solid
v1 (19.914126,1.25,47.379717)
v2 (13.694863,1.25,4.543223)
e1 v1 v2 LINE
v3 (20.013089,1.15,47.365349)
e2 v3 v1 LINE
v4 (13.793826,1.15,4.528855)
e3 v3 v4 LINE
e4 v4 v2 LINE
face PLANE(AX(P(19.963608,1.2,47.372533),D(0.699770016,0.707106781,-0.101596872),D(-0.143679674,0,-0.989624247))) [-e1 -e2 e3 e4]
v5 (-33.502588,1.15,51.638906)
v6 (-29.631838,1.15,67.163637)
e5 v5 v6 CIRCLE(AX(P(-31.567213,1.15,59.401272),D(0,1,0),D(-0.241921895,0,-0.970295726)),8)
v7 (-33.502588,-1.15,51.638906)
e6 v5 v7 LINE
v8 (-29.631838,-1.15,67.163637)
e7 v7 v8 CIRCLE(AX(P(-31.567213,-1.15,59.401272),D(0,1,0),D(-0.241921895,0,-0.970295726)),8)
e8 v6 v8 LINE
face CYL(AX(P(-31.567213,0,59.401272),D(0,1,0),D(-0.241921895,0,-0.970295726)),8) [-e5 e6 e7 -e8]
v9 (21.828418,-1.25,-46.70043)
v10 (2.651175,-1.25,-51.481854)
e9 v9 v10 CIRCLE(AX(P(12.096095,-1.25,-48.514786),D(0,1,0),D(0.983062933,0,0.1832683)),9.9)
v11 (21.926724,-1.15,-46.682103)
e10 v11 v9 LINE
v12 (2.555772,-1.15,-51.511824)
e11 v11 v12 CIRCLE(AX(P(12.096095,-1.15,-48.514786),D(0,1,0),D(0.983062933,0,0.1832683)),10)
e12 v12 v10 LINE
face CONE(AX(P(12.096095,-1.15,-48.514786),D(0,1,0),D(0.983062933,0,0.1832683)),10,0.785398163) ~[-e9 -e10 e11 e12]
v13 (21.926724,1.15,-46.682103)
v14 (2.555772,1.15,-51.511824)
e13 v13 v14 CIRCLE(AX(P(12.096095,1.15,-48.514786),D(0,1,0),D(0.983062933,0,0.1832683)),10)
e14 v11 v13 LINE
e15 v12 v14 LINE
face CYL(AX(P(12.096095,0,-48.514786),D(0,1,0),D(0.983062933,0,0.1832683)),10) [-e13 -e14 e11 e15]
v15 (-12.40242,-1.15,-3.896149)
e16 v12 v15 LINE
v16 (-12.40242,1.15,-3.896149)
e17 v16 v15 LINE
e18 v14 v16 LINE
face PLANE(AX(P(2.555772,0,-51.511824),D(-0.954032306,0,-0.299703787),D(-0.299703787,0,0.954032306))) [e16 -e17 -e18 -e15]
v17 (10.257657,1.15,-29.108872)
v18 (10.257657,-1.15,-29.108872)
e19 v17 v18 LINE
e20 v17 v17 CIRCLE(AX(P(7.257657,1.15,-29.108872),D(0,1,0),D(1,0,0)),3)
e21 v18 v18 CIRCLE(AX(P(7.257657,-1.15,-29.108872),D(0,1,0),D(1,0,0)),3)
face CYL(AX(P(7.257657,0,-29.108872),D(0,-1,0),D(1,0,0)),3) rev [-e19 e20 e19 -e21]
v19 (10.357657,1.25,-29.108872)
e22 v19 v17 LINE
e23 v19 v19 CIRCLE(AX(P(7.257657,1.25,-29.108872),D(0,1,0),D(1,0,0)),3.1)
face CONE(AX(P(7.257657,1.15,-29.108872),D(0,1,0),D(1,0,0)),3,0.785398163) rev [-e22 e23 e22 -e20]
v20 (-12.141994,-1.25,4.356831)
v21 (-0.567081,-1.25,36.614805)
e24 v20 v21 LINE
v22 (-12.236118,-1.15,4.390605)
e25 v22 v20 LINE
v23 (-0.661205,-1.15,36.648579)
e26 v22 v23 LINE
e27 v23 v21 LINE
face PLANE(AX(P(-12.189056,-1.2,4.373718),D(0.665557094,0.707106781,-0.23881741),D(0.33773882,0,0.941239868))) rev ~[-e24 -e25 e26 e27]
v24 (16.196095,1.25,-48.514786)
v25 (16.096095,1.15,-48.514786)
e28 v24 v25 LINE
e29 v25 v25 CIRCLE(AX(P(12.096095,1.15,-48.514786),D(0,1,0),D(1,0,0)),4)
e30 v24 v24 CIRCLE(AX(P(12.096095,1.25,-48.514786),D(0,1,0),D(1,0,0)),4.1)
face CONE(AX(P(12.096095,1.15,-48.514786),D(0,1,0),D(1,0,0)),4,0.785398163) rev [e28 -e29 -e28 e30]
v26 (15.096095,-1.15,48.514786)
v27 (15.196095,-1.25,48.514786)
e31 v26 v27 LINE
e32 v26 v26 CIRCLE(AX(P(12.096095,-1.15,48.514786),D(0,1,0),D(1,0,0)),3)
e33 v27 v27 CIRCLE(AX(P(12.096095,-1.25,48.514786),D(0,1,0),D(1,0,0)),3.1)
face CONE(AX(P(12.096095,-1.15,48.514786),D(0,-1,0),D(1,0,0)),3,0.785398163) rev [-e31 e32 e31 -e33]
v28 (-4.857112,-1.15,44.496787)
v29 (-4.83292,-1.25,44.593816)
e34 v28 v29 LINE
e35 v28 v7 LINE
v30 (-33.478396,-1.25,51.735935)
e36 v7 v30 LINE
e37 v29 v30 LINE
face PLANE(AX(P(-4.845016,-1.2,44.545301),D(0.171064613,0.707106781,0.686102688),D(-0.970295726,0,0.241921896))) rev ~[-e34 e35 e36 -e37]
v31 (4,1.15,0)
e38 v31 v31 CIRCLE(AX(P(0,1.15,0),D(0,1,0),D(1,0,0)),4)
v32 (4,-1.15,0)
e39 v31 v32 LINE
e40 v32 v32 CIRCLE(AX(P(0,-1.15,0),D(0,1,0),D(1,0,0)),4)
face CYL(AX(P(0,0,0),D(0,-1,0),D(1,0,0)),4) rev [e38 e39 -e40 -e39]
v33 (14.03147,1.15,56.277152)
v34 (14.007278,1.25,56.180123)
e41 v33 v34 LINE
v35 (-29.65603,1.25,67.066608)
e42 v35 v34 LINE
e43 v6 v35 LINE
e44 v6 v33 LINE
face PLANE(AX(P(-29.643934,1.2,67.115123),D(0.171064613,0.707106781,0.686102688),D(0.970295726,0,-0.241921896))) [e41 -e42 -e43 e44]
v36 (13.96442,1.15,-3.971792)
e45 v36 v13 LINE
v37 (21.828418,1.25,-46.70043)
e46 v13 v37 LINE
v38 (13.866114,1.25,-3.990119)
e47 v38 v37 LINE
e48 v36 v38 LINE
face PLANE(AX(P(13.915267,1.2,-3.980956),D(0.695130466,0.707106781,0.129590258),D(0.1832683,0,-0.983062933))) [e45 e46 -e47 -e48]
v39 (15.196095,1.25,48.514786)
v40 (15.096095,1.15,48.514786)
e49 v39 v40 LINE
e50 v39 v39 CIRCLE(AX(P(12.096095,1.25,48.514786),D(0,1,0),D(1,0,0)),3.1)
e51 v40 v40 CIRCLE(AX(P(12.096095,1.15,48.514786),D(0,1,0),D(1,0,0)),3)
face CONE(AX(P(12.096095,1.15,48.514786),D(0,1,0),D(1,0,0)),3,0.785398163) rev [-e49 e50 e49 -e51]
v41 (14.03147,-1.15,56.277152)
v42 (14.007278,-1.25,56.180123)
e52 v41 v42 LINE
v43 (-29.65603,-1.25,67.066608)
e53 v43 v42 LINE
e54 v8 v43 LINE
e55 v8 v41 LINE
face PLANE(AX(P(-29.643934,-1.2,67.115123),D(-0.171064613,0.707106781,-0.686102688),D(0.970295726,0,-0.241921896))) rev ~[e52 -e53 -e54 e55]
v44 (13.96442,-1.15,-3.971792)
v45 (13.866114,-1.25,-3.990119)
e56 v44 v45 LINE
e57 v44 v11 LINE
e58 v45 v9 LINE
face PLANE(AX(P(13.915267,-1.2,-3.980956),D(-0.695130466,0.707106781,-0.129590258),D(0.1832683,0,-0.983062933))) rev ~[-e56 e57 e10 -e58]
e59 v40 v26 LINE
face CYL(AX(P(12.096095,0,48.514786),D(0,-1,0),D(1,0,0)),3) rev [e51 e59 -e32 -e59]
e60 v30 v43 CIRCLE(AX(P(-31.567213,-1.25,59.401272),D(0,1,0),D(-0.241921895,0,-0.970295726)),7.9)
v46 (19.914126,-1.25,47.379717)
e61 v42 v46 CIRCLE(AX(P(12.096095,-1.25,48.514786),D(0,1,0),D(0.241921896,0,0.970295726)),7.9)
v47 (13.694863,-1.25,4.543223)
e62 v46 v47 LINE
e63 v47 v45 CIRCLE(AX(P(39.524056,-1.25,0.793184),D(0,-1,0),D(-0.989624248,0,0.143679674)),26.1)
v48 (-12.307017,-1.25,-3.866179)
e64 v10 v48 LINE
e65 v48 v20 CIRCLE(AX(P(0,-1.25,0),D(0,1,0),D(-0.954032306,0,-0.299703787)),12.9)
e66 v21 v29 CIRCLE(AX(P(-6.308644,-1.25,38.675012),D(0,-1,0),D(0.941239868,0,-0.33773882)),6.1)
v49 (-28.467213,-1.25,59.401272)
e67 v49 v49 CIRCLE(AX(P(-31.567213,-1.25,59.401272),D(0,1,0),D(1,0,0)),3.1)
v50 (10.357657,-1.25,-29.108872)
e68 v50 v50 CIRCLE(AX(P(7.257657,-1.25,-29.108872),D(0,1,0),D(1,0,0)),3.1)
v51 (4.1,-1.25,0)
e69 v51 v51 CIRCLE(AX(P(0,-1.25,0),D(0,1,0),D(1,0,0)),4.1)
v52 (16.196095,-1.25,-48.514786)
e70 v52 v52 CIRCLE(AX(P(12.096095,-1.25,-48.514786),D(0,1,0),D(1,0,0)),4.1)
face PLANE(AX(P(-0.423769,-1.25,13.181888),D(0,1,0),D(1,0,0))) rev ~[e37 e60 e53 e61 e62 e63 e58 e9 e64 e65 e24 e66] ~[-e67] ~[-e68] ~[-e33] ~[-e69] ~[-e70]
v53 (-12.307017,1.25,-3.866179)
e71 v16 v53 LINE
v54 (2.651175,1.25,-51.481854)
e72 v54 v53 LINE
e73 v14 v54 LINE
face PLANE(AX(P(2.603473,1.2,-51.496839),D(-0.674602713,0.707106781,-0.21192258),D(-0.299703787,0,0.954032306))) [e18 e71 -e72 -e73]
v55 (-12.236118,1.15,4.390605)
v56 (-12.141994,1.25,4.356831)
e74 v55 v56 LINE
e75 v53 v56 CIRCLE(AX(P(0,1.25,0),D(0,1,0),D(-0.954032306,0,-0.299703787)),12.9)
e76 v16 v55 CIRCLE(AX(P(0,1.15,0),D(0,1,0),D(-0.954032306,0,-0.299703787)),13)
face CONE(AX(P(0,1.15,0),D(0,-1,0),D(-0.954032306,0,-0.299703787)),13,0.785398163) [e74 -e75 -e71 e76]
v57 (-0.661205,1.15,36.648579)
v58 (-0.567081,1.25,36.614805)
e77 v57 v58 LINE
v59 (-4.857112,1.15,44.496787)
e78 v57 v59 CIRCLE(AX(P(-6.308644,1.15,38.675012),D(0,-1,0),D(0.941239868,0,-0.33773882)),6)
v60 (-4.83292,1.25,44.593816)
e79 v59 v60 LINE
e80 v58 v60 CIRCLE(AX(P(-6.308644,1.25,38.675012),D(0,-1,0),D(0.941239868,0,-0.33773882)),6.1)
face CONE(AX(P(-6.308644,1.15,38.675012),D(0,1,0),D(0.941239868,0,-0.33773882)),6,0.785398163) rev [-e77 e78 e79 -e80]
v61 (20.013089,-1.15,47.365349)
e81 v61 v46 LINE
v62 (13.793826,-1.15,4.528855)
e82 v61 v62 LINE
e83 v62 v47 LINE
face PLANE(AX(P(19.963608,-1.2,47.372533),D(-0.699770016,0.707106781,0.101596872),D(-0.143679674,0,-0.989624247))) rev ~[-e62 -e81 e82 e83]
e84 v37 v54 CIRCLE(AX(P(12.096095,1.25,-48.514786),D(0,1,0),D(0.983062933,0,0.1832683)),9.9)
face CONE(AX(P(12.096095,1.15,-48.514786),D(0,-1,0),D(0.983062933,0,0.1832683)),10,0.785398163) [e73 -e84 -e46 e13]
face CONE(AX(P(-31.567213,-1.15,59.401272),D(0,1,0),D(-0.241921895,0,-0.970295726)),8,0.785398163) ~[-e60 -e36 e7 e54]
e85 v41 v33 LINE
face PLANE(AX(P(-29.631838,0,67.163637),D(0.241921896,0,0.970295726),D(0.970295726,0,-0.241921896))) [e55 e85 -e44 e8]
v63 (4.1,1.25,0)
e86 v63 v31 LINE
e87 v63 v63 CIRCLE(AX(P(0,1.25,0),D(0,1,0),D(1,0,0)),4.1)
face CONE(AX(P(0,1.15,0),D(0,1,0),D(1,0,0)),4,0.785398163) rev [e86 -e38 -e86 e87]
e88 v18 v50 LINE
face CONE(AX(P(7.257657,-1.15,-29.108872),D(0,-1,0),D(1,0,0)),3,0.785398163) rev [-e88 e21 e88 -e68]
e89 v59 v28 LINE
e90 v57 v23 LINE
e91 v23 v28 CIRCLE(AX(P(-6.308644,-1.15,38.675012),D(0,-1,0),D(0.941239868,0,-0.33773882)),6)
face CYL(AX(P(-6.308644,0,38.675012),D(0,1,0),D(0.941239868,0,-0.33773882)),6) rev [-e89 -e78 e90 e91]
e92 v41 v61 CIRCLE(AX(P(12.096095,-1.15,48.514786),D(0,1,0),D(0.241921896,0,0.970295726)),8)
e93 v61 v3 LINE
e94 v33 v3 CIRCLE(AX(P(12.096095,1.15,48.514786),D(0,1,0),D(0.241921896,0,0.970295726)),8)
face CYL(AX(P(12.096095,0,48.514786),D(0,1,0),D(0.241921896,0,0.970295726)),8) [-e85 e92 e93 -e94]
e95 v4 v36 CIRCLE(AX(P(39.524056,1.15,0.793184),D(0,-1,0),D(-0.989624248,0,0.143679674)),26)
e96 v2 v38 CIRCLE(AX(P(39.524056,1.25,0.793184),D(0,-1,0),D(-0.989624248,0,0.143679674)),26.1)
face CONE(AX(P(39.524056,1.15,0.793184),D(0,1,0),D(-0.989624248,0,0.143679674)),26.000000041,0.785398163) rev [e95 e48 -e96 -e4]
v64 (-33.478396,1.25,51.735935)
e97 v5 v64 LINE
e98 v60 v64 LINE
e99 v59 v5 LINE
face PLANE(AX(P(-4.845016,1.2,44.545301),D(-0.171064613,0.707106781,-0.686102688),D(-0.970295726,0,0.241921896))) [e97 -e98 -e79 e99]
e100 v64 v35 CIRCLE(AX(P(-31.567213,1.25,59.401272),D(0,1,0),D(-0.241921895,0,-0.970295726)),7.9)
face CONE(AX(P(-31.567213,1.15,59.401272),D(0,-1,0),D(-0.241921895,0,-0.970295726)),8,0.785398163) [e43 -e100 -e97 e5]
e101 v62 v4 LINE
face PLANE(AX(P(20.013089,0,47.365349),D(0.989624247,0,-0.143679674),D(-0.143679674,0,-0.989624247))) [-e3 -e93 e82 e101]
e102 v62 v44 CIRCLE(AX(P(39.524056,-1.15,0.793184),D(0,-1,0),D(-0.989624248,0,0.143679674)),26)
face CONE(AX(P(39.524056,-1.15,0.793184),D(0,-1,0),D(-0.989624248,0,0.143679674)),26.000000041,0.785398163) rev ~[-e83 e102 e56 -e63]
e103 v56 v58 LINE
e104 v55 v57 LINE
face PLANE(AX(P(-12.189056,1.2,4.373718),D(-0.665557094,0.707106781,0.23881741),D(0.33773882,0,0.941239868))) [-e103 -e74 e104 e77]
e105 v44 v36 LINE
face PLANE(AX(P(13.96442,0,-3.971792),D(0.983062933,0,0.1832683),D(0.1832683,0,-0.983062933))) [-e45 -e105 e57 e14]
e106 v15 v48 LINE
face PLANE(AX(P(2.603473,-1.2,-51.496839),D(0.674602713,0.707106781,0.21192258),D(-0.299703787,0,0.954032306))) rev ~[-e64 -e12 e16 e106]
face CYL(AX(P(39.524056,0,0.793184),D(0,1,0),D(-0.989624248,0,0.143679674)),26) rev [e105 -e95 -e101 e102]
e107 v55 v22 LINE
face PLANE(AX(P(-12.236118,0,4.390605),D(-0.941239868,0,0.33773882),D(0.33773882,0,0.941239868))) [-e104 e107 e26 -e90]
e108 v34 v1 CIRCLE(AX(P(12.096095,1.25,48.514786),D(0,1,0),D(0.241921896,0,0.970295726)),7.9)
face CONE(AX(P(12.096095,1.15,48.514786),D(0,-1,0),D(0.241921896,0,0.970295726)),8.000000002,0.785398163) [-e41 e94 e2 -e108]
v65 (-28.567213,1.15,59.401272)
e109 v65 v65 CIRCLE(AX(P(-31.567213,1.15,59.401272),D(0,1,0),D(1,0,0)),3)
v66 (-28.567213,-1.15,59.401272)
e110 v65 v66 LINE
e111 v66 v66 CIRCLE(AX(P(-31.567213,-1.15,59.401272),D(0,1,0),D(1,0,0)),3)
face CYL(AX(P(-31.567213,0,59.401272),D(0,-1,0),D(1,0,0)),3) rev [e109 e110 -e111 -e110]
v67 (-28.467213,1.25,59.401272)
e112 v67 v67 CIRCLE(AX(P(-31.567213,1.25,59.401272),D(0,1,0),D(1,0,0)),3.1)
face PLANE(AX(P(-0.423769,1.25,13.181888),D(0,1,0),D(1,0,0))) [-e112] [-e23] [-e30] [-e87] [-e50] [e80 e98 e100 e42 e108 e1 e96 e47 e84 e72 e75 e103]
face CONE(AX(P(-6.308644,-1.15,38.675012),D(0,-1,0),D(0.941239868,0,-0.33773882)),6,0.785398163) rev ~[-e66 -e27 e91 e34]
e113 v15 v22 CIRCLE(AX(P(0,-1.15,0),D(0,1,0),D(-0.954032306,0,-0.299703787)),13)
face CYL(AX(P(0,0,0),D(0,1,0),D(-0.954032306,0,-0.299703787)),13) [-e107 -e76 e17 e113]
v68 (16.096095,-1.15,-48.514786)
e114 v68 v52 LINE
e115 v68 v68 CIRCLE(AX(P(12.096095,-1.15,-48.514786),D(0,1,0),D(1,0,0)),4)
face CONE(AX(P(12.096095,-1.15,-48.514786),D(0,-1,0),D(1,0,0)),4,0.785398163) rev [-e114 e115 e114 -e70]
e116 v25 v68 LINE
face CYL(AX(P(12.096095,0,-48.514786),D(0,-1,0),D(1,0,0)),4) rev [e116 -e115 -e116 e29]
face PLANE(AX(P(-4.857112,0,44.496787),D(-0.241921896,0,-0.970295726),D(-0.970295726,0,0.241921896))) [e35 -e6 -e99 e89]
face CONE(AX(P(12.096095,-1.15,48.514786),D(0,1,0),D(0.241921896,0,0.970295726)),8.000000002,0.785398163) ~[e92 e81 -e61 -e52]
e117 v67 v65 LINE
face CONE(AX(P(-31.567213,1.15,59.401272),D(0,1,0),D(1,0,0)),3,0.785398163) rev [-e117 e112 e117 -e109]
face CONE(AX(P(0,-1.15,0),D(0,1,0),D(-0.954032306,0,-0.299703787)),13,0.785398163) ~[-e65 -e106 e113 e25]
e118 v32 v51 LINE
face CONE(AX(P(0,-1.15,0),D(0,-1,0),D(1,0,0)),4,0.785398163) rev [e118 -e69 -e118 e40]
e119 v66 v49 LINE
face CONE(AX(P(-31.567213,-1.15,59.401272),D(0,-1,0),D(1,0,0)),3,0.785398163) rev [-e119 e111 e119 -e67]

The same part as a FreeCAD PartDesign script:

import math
import FreeCAD as App
import Part
import Sketcher

V = App.Vector
Q = App.Units.Quantity


def edges_at(feature, points):
    """Names of the edges that pass closest to the given points."""
    edges = feature.Shape.Edges
    near = lambda p: min(range(len(edges)), key=lambda i: edges[i].distToShape(Part.Vertex(*p))[0])
    return sorted({f"Edge{near(p) + 1}" for p in points})

doc = App.newDocument("Part")
body = doc.addObject("PartDesign::Body", "Body")

# Sketch on XZ plane
sketch1 = doc.addObject("Sketcher::SketchObject", "Sketch")
body.addObject(sketch1)
sketch1.AttachmentSupport = (doc.XZ_Plane, [""])
sketch1.MapMode = "FlatFace"
sketch1.addGeometry([
    Part.LineSegment(V(-29.6, 67.2, 0), V(14, 56.3, 0)),  # 0
    Part.ArcOfCircle(Part.Circle(V(12.1, 48.5, 0), V(0, 0, 1), 8), math.radians(-8), math.radians(76)),  # 1
    Part.LineSegment(V(20, 47.4, 0), V(13.8, 4.5, 0)),  # 2
    Part.ArcOfCircle(Part.Circle(V(39.5, 0.8, 0), V(0, 0, 1), 26), math.radians(171.74), math.radians(190.56)),  # 3
    Part.LineSegment(V(14, -4, 0), V(21.9, -46.7, 0)),  # 4
    Part.ArcOfCircle(Part.Circle(V(12.1, -48.5, 0), V(0, 0, 1), 10), math.radians(-163), math.radians(11)),  # 5
    Part.LineSegment(V(2.6, -51.5, 0), V(-12.4, -3.9, 0)),  # 6
    Part.ArcOfCircle(Part.Circle(V(0, 0, 0), V(0, 0, 1), 13), math.radians(160), math.radians(197)),  # 7
    Part.LineSegment(V(-12.2, 4.4, 0), V(-0.7, 36.6, 0)),  # 8
    Part.ArcOfCircle(Part.Circle(V(-6.3, 38.7, 0), V(0, 0, 1), 6), math.radians(-20), math.radians(76)),  # 9
    Part.LineSegment(V(-4.9, 44.5, 0), V(-33.5, 51.6, 0)),  # 10
    Part.ArcOfCircle(Part.Circle(V(-31.6, 59.4, 0), V(0, 0, 1), 8), math.radians(76), math.radians(256)),  # 11
    Part.Circle(V(-31.6, 59.4, 0), V(0, 0, 1), 3),  # 12
    Part.Circle(V(12.1, 48.5, 0), V(0, 0, 1), 3),  # 13
    Part.Circle(V(0, 0, 0), V(0, 0, 1), 4),  # 14
    Part.Circle(V(7.3, -29.1, 0), V(0, 0, 1), 3),  # 15
    Part.Circle(V(12.1, -48.5, 0), V(0, 0, 1), 4),  # 16
], False)
sketch1.addConstraint([
    Sketcher.Constraint("Tangent", 0, 2, 1, 2),
    Sketcher.Constraint("Tangent", 1, 1, 2, 1),
    Sketcher.Constraint("Tangent", 2, 2, 3, 1),
    Sketcher.Constraint("Tangent", 3, 2, 4, 1),
    Sketcher.Constraint("Tangent", 4, 2, 5, 2),
    Sketcher.Constraint("Tangent", 5, 1, 6, 1),
    Sketcher.Constraint("Tangent", 6, 2, 7, 2),
    Sketcher.Constraint("Tangent", 7, 1, 8, 1),
    Sketcher.Constraint("Tangent", 8, 2, 9, 1),
    Sketcher.Constraint("Tangent", 9, 2, 10, 1),
    Sketcher.Constraint("Tangent", 10, 2, 11, 2),
    Sketcher.Constraint("Tangent", 11, 1, 0, 1),
    Sketcher.Constraint("Coincident", 7, 3, -1, 1),
    Sketcher.Constraint("Coincident", 14, 3, -1, 1),
    Sketcher.Constraint("Coincident", 12, 3, 11, 3),
    Sketcher.Constraint("Coincident", 13, 3, 1, 3),
    Sketcher.Constraint("Coincident", 16, 3, 5, 3),
    Sketcher.Constraint("Equal", 1, 11),
    Sketcher.Constraint("Equal", 12, 13),
    Sketcher.Constraint("Equal", 13, 15),
    Sketcher.Constraint("Equal", 14, 16),
    Sketcher.Constraint("Symmetric", 1, 3, 5, 3, -1),
    Sketcher.Constraint("Parallel", 0, 10),
    Sketcher.Constraint("Diameter", 12, 6.0),
    Sketcher.Constraint("Diameter", 14, 8.0),
    Sketcher.Constraint("Radius", 1, 8.0),
    Sketcher.Constraint("Radius", 3, 26.0),
    Sketcher.Constraint("Radius", 5, 10.0),
    Sketcher.Constraint("Radius", 7, 13.0),
    Sketcher.Constraint("Radius", 9, 6.0),
    Sketcher.Constraint("Angle", 0, Q("-14 deg")),
    Sketcher.Constraint("Distance", 0, 45.0),
    Sketcher.Constraint("DistanceY", 9, 2, 1, 3, 4.018),
    Sketcher.Constraint("DistanceX", 9, 3, 3, 3, 45.8327),
    Sketcher.Constraint("DistanceY", 5, 3, 9, 3, 87.189799),
    Sketcher.Constraint("DistanceX", 15, 3, 3, 3, 32.266399),
    Sketcher.Constraint("DistanceX", 6, 2, 7, 1, 0.166302),
    Sketcher.Constraint("Distance", 4, 43.446162),
    Sketcher.Constraint("DistanceY", 15, 3, -1, 1, 29.108872),
])
pad1 = doc.addObject("PartDesign::Pad", "Pad")
body.addObject(pad1)
pad1.Profile = sketch1
pad1.Length = 2.5
pad1.Midplane = True
doc.recompute()

chamfer = doc.addObject("PartDesign::Chamfer", "Chamfer")
body.addObject(chamfer)
chamfer.Base = (pad1, edges_at(pad1, [
    (-39.33, 1.25, 61.337),
    (-6.449, -1.25, 20.52),
    (-12.997, -1.25, 0.261),
    (-4.923, -1.25, -27.704),
    (14.515, -1.25, -58.218),
    (17.946, -1.25, -25.327),
    (13.529, -1.25, 0.272),
    (-7.8, 1.25, 61.72),
    (16.903, -1.25, 25.947),
    (18.739, -1.25, 52.973),
    (-7.8, -1.25, 61.72),
    (-39.33, -1.25, 61.337),
    (-19.18, -1.25, 48.068),
    (-1.017, -1.25, 41.504),
    (18.739, 1.25, 52.973),
    (16.903, 1.25, 25.947),
    (13.529, 1.25, 0.272),
    (17.946, 1.25, -25.327),
    (14.515, 1.25, -58.218),
    (-4, -1.25, 0),
    (-4, 1.25, 0),
    (-4.923, 1.25, -27.704),
    (8.096, -1.25, -48.515),
    (8.096, 1.25, -48.515),
    (-12.997, 1.25, 0.261),
    (-6.449, 1.25, 20.52),
    (4.258, -1.25, -29.109),
    (4.258, 1.25, -29.109),
    (-1.017, 1.25, 41.504),
    (9.096, -1.25, 48.515),
    (9.096, 1.25, 48.515),
    (-34.567, -1.25, 59.401),
    (-34.567, 1.25, 59.401),
    (-19.18, 1.25, 48.068),
]))
chamfer.Size = 0.1

doc.recompute()
